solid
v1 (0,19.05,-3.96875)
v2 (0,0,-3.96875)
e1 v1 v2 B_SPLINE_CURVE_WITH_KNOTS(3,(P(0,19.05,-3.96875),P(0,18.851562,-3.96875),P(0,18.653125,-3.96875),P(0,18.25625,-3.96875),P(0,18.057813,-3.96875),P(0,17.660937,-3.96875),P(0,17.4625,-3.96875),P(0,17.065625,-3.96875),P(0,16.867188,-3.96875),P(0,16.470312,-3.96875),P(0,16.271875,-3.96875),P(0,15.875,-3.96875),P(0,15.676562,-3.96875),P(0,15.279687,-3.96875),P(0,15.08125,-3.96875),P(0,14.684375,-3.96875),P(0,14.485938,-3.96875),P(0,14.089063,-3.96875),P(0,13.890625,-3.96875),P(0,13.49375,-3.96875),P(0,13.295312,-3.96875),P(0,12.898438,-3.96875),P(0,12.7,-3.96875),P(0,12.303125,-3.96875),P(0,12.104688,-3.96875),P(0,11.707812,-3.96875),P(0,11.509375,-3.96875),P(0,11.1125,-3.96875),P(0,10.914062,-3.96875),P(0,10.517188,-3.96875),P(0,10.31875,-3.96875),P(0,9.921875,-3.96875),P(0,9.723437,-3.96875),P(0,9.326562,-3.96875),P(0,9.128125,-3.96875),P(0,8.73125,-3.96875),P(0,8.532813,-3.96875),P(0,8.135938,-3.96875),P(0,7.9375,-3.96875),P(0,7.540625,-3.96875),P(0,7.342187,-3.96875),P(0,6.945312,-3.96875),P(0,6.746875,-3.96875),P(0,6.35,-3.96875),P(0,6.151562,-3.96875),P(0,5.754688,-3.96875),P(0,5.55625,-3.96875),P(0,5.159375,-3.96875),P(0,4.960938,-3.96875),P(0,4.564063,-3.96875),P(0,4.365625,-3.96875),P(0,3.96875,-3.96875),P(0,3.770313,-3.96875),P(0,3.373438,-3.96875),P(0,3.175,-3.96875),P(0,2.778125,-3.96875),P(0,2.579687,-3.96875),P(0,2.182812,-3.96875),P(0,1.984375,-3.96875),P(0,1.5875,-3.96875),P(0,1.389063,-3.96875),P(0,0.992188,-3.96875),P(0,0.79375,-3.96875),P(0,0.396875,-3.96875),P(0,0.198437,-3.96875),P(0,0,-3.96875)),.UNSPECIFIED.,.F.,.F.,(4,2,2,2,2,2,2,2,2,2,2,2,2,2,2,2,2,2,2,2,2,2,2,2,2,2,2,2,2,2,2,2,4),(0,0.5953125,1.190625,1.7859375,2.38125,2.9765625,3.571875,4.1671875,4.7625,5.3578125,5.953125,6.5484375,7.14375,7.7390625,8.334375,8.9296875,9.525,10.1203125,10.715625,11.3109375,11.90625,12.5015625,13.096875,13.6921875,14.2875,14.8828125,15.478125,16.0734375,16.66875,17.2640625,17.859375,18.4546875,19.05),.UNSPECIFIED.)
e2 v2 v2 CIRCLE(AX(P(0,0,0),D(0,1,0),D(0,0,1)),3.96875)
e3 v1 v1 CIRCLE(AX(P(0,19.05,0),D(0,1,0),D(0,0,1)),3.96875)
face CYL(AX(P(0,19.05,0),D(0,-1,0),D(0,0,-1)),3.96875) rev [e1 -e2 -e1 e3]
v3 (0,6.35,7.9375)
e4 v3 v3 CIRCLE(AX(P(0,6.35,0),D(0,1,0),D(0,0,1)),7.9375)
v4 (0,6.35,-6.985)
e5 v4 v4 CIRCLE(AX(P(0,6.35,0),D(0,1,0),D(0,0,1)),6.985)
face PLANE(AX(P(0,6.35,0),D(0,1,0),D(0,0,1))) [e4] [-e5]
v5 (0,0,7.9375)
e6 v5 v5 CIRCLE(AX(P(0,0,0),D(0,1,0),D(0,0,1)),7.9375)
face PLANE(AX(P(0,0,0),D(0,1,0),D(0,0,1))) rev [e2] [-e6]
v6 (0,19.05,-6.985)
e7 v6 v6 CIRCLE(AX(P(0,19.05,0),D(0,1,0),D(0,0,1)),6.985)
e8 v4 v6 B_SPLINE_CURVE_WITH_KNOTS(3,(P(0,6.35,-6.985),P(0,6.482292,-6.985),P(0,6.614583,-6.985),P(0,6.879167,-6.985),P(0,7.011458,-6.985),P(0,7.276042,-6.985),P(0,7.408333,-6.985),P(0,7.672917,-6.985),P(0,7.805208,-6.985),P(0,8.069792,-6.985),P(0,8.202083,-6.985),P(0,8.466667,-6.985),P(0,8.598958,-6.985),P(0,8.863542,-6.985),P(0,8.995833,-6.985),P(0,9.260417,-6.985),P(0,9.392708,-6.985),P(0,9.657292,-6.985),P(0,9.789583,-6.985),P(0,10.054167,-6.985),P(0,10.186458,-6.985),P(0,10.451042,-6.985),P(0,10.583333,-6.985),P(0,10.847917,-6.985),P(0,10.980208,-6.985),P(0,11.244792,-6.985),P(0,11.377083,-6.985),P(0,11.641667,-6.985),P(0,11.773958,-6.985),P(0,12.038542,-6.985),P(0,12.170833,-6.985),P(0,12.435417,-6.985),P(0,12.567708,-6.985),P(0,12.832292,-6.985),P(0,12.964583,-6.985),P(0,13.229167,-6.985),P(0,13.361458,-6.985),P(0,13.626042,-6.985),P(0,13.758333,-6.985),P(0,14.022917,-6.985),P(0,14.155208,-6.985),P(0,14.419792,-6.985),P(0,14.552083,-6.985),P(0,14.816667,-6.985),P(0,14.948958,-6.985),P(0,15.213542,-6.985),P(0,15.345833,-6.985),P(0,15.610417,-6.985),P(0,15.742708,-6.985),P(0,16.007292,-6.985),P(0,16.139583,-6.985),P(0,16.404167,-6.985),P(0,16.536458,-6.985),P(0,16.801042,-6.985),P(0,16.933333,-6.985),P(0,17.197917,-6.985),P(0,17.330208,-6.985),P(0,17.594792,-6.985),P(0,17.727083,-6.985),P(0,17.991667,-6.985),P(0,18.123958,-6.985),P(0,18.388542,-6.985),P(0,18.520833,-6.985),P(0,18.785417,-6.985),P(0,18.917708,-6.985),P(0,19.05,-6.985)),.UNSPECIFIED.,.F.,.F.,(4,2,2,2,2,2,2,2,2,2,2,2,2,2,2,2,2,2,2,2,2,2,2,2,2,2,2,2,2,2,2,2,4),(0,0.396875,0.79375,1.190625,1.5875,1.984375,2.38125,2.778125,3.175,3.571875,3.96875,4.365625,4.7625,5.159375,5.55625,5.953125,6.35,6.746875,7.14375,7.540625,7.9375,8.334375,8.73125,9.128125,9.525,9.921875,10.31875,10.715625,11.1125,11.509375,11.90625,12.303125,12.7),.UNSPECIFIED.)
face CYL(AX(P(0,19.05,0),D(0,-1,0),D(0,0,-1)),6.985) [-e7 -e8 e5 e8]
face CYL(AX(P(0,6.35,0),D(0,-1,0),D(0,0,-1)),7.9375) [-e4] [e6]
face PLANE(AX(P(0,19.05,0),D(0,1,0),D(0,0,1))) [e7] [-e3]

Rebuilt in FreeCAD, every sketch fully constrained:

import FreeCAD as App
import Part
import Sketcher

V = App.Vector
Q = App.Units.Quantity

doc = App.newDocument("Part")
body = doc.addObject("PartDesign::Body", "Body")

sketch1 = body.newObject("Sketcher::SketchObject", "Sketch")
sketch1.AttachmentSupport = (doc.getObject("XZ_Plane"), [""])
sketch1.MapMode = "FlatFace"
sketch1.addGeometry(Part.Circle(V(0, 0, 0), V(0, 0, 1), 7), False)
sketch1.addGeometry(Part.Circle(V(0, 0, 0), V(0, 0, 1), 4), False)
sketch1.addConstraint(Sketcher.Constraint("Coincident", 0, 3, -1, 1))
sketch1.addConstraint(Sketcher.Constraint("Coincident", 1, 3, -1, 1))
sketch1.addConstraint(Sketcher.Constraint("Diameter", 0, Q("0.55 in")))
sketch1.addConstraint(Sketcher.Constraint("Diameter", 1, Q("0.3125 in")))
pad1 = body.newObject("PartDesign::Pad", "Pad")
pad1.Profile = sketch1
pad1.Length = Q("0.75 in")
pad1.Reversed = True

sketch2 = body.newObject("Sketcher::SketchObject", "Sketch001")
sketch2.AttachmentSupport = (doc.getObject("XZ_Plane"), [""])
sketch2.MapMode = "FlatFace"
sketch2.addGeometry(Part.Circle(V(0, 0, 0), V(0, 0, 1), 8), False)
sketch2.addGeometry(Part.Circle(V(0, 0, 0), V(0, 0, 1), 7), False)
sketch2.addConstraint(Sketcher.Constraint("Coincident", 0, 3, -1, 1))
sketch2.addConstraint(Sketcher.Constraint("Coincident", 1, 3, -1, 1))
sketch2.addConstraint(Sketcher.Constraint("Diameter", 1, Q("0.55 in")))
sketch2.addConstraint(Sketcher.Constraint("Diameter", 0, Q("0.625 in")))
pad2 = body.newObject("PartDesign::Pad", "Pad001")
pad2.Profile = sketch2
pad2.Length = Q("0.25 in")
pad2.Reversed = True

doc.recompute()
